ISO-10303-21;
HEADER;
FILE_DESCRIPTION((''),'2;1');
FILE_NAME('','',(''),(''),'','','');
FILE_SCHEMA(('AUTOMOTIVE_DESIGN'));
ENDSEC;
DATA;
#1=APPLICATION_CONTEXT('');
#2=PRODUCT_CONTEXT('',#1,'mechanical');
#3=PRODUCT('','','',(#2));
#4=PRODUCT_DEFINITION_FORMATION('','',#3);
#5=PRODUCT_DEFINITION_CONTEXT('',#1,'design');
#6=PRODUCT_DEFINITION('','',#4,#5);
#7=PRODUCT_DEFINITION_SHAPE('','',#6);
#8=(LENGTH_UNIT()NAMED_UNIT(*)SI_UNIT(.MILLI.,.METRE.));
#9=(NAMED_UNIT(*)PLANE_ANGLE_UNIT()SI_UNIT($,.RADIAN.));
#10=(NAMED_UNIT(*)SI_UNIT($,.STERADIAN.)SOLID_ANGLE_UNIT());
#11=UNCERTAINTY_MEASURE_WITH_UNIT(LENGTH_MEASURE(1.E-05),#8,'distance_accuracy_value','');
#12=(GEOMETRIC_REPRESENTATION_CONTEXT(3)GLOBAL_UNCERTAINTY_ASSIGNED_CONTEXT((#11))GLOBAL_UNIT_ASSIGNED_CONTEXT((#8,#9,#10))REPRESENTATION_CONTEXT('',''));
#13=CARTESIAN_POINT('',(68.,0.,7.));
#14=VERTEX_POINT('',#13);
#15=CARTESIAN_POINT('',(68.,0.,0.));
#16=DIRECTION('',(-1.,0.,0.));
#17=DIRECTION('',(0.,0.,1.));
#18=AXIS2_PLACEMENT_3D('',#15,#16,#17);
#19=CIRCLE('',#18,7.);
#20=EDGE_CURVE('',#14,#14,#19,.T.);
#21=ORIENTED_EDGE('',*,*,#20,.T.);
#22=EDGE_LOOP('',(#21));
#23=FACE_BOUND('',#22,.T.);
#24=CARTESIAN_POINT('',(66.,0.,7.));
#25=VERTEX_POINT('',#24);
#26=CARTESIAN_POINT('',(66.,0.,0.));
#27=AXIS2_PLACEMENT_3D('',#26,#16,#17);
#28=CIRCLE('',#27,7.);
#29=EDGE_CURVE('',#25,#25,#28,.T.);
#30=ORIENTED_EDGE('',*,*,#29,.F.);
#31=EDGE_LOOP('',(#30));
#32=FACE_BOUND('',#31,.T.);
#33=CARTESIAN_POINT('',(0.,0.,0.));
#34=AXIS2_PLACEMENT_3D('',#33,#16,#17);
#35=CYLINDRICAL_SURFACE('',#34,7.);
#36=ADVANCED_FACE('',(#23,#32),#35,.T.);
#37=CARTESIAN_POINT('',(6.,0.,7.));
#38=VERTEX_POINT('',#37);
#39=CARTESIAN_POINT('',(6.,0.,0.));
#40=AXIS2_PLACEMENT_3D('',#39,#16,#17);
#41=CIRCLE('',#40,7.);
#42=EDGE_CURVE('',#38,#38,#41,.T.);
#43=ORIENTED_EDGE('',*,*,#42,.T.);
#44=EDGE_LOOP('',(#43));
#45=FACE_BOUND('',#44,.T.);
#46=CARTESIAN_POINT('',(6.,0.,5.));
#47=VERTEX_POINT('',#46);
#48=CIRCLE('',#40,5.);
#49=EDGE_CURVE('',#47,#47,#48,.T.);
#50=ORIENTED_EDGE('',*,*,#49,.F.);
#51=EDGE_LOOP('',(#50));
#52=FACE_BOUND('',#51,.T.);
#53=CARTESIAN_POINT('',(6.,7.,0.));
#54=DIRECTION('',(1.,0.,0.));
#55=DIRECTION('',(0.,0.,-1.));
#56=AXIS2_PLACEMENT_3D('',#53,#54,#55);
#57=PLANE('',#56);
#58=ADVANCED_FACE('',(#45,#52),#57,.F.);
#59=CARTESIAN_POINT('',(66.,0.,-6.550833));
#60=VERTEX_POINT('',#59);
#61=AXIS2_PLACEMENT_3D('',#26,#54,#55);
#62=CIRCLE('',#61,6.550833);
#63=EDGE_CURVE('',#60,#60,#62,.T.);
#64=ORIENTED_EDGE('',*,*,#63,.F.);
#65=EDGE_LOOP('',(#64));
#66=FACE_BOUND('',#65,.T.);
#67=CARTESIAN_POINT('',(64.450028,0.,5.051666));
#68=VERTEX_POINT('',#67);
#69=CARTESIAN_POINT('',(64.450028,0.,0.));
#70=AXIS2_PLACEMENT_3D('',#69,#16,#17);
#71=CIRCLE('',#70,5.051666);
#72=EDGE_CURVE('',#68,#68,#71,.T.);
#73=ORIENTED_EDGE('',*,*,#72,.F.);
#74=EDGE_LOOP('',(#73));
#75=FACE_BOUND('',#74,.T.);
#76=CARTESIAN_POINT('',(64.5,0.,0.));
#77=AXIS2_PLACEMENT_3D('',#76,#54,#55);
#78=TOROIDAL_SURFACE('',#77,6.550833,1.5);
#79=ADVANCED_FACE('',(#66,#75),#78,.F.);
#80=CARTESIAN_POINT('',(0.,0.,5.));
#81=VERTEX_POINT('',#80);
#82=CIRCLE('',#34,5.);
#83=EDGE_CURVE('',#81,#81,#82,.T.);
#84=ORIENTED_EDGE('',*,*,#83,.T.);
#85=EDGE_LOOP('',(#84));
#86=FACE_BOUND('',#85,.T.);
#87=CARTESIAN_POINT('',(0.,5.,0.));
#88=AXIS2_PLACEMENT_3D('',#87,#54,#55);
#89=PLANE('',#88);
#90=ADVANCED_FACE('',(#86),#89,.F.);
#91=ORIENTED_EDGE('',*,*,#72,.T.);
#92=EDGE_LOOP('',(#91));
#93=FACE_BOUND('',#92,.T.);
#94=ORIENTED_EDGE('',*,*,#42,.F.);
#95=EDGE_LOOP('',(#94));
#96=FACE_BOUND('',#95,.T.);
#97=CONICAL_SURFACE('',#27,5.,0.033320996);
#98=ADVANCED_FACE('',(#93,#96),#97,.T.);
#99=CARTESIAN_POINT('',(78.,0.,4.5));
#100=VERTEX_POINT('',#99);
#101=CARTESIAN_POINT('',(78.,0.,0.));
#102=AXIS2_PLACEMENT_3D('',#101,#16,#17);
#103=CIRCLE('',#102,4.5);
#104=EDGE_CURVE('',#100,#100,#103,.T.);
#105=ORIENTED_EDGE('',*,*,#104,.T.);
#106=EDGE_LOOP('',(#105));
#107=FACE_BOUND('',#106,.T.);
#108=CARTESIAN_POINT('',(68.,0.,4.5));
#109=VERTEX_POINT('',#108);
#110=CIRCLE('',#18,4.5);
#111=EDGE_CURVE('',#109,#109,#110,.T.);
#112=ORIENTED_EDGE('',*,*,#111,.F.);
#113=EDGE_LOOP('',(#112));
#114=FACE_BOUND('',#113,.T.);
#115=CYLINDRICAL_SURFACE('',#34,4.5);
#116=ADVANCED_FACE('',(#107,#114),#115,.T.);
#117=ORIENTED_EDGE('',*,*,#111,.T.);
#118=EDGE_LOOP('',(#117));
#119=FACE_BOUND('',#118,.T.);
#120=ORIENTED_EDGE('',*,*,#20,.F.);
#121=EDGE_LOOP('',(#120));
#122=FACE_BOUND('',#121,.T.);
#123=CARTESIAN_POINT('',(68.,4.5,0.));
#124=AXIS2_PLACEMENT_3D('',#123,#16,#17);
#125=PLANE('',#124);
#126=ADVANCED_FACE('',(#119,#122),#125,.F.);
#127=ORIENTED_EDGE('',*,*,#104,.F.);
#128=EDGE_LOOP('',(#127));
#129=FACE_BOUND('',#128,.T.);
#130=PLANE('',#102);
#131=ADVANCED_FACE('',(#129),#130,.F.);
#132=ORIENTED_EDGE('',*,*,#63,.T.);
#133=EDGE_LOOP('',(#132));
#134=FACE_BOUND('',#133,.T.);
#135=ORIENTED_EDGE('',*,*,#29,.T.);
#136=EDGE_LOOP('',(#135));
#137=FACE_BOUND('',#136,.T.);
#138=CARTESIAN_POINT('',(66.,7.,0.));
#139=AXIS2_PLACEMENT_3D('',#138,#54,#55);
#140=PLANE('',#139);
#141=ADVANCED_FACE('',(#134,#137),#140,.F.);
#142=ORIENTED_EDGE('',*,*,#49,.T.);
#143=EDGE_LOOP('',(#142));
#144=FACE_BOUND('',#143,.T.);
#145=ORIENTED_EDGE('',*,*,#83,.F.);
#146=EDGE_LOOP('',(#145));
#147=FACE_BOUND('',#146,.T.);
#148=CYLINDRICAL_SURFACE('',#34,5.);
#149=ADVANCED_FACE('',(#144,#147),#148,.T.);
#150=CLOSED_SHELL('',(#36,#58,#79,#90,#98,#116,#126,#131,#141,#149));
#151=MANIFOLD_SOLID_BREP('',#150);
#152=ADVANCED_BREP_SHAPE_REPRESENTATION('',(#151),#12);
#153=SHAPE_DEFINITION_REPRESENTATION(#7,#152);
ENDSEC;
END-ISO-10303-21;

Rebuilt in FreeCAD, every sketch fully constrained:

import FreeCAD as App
import Part
import Sketcher

V = App.Vector
Q = App.Units.Quantity


def edges_at(feature, points):
    """Names of the edges that pass closest to the given points."""
    edges = feature.Shape.Edges
    near = lambda p: min(range(len(edges)), key=lambda i: edges[i].distToShape(Part.Vertex(*p))[0])
    return sorted({f"Edge{near(p) + 1}" for p in points})


def add_polygon(sketch, points):
    """Adds a closed chain of lines whose ends are joined by coincident constraints."""
    first, n = sketch.GeometryCount, len(points)
    for a, b in zip(points, points[1:] + points[:1]):
        sketch.addGeometry(Part.LineSegment(App.Vector(*a, 0), App.Vector(*b, 0)), False)
    for i in range(n):
        sketch.addConstraint(Sketcher.Constraint("Coincident", first + i, 2, first + (i + 1) % n, 1))

doc = App.newDocument("Part")
body = doc.addObject("PartDesign::Body", "Body")

# Sketch on XY plane
sketch1 = body.newObject("Sketcher::SketchObject", "Sketch")
sketch1.AttachmentSupport = (doc.getObject("XY_Plane"), [""])
sketch1.MapMode = "FlatFace"
add_polygon(sketch1, [(0, 0), (78, 0), (78, 4.5), (68, 4.5), (68, 7), (66, 7), (66, 5), (6, 7), (6, 5), (0, 5)])  # lines 0-9
sketch1.addConstraint(Sketcher.Constraint("Horizontal", 0))
sketch1.addConstraint(Sketcher.Constraint("Vertical", 1))
sketch1.addConstraint(Sketcher.Constraint("Horizontal", 2))
sketch1.addConstraint(Sketcher.Constraint("Vertical", 3))
sketch1.addConstraint(Sketcher.Constraint("Horizontal", 4))
sketch1.addConstraint(Sketcher.Constraint("Vertical", 5))
sketch1.addConstraint(Sketcher.Constraint("Vertical", 7))
sketch1.addConstraint(Sketcher.Constraint("Horizontal", 8))
sketch1.addConstraint(Sketcher.Constraint("Vertical", 9))
sketch1.addConstraint(Sketcher.Constraint("Coincident", 9, 2, -1, 1))
sketch1.addConstraint(Sketcher.Constraint("Horizontal", 4, 2, 6, 2))
sketch1.addConstraint(Sketcher.Constraint("Horizontal", 5, 2, 7, 2))
sketch1.addConstraint(Sketcher.Constraint("Equal", 4, 5))
sketch1.addConstraint(Sketcher.Constraint("DistanceX", 0, 1, 0, 2, Q("78 mm")))
sketch1.addConstraint(Sketcher.Constraint("DistanceX", 2, 2, 2, 1, Q("10 mm")))
sketch1.addConstraint(Sketcher.Constraint("DistanceX", 4, 2, 4, 1, Q("2 mm")))
sketch1.addConstraint(Sketcher.Constraint("DistanceX", 8, 2, 8, 1, Q("6 mm")))
sketch1.addConstraint(Sketcher.Constraint("DistanceY", 9, 2, 9, 1, Q("5 mm")))
sketch1.addConstraint(Sketcher.Constraint("DistanceY", 1, 1, 1, 2, Q("4.5 mm")))
revolution = body.newObject("PartDesign::Revolution", "Revolution")
revolution.Profile = sketch1
revolution.ReferenceAxis = (sketch1, ["H_Axis"])
revolution.Angle = 360
doc.recompute()

fillet = body.newObject("PartDesign::Fillet", "Fillet")
fillet.Base = (revolution, edges_at(revolution, [(66, -5, 0)]))
fillet.Radius = 1.5

doc.recompute()
